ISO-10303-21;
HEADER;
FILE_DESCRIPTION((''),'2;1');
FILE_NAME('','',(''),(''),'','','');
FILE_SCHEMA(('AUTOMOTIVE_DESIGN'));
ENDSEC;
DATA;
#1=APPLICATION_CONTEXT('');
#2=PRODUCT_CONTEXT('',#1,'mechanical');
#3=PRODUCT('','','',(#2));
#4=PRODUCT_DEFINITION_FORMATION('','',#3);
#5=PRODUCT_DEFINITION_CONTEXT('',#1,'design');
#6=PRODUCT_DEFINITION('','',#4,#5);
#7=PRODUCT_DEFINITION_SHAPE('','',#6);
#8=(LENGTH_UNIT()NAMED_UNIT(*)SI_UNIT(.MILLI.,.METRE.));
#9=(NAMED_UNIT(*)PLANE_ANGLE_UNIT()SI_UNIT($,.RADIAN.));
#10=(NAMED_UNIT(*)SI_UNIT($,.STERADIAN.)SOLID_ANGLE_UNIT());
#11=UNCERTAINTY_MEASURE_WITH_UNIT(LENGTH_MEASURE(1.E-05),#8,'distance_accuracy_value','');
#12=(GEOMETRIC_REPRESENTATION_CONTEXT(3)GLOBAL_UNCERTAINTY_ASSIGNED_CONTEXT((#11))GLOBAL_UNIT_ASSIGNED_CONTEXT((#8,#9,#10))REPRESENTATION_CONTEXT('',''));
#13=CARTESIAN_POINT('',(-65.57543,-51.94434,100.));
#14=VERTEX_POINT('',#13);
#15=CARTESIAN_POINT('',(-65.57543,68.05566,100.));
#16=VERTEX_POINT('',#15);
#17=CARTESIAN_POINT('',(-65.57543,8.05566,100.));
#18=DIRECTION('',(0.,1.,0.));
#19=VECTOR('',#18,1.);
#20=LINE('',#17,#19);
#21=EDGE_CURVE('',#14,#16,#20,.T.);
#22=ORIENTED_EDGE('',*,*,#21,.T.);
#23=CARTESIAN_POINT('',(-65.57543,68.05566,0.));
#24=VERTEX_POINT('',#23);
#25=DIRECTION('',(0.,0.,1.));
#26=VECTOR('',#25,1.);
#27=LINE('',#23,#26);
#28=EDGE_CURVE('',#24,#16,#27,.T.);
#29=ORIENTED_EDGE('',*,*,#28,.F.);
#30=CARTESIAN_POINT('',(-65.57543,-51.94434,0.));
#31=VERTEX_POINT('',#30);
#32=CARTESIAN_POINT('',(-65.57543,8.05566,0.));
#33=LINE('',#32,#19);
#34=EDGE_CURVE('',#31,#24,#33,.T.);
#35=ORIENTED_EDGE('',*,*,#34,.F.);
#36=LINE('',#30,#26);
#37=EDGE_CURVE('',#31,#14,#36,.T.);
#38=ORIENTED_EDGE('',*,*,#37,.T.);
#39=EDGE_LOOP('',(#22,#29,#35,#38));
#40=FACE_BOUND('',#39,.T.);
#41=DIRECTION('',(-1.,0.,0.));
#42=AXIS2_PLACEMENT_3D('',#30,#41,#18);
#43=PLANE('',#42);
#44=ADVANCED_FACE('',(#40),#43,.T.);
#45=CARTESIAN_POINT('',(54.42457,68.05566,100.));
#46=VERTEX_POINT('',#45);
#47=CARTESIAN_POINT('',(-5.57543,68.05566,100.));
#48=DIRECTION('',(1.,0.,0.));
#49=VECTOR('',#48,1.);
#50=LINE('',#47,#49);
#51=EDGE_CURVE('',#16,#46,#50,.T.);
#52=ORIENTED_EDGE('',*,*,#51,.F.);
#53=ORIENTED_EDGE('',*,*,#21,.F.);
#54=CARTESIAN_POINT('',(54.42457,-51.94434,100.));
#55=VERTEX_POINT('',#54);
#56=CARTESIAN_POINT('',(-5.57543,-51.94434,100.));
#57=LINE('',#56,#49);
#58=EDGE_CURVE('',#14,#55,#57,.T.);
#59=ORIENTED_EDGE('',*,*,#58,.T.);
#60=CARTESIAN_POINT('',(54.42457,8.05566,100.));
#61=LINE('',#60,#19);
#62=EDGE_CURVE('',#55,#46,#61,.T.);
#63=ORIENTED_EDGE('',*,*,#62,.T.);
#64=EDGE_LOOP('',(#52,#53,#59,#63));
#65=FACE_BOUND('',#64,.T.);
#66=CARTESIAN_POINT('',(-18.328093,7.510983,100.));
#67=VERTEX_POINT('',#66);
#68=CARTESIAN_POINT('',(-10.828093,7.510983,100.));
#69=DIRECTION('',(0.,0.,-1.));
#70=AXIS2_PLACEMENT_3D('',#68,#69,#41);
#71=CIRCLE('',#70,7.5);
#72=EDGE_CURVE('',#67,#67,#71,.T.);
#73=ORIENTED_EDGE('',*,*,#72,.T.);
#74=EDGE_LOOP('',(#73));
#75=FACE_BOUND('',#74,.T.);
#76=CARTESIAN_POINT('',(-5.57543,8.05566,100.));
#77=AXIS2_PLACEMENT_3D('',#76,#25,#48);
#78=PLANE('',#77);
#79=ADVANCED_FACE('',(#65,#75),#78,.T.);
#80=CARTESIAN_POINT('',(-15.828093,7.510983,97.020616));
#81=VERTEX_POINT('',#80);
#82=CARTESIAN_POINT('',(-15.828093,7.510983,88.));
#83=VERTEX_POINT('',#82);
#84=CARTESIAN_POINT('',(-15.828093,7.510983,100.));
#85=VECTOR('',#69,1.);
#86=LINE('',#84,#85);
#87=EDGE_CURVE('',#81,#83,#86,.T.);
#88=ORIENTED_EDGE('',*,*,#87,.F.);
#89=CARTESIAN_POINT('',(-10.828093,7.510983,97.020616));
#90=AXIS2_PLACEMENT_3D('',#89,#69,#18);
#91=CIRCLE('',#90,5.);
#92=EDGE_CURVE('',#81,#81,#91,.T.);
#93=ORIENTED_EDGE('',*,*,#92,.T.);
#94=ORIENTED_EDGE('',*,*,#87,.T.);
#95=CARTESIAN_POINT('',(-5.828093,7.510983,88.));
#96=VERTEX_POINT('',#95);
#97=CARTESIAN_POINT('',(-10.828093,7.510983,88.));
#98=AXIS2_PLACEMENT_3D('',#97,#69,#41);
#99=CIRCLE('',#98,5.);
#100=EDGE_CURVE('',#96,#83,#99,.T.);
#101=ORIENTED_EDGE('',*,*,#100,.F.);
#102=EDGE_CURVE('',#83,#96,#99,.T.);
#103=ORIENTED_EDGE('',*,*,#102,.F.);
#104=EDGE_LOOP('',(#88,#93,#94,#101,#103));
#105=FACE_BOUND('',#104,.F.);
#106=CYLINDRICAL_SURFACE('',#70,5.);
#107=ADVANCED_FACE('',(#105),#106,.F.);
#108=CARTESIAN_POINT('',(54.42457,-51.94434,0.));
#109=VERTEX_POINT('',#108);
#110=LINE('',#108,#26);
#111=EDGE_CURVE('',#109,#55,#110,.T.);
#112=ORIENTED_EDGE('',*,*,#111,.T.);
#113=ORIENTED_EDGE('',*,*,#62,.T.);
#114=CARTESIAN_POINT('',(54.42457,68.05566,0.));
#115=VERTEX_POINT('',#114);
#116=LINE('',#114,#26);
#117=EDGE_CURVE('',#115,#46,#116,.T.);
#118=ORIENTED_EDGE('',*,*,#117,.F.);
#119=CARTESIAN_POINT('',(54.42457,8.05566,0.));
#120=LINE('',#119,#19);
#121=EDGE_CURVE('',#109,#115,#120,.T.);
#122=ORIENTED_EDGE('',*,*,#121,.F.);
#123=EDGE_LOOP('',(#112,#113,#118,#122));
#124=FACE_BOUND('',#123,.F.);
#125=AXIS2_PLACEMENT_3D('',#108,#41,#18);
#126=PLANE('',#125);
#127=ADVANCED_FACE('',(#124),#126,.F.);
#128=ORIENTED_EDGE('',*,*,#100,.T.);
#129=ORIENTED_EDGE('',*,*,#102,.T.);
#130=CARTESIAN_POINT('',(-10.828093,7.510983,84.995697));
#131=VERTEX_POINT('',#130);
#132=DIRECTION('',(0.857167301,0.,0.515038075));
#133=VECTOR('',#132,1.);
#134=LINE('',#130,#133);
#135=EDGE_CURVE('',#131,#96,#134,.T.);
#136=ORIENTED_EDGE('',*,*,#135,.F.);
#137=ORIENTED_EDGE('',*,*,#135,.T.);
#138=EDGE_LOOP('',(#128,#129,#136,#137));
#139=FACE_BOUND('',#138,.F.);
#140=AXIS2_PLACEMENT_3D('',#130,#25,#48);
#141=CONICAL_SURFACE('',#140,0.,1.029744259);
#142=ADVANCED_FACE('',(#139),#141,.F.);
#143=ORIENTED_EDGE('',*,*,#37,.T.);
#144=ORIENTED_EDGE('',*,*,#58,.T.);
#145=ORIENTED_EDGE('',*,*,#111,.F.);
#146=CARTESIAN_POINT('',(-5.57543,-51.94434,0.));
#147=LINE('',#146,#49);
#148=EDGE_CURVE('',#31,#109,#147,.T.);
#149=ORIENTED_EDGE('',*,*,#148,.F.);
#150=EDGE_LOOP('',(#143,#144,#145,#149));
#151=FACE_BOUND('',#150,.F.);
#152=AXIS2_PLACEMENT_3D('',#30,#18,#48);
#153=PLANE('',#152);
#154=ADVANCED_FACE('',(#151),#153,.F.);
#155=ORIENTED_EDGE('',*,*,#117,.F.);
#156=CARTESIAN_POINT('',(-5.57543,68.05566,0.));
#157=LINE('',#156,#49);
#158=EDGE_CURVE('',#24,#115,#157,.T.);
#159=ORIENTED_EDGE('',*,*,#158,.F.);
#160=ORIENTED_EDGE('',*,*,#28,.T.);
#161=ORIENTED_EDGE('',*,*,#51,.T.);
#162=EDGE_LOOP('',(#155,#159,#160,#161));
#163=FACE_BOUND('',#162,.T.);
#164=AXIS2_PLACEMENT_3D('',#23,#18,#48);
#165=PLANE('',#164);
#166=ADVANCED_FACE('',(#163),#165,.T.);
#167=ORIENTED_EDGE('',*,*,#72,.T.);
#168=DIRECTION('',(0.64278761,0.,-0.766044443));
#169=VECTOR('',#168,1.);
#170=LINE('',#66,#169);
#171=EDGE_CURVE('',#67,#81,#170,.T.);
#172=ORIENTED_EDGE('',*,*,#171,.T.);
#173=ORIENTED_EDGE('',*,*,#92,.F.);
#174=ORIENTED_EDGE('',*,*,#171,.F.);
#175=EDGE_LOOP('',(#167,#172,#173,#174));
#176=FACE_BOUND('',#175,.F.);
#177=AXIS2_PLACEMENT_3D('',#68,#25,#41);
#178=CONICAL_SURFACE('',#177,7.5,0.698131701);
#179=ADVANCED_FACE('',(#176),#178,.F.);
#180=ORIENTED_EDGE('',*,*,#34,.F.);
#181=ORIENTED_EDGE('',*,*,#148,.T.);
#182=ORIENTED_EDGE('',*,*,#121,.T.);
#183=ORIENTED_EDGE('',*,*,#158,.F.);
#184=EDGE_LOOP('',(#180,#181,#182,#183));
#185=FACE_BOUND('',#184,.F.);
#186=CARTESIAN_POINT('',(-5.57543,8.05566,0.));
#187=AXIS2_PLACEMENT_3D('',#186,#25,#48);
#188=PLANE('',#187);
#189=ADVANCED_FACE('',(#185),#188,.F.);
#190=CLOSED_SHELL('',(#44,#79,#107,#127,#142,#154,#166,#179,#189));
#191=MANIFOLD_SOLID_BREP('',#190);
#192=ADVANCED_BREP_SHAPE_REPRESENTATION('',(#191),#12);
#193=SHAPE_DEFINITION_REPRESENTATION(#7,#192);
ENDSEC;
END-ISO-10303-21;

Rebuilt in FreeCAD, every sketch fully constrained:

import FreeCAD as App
import Part
import Sketcher

V = App.Vector
Q = App.Units.Quantity

doc = App.newDocument("Part")
params = doc.addObject("Spreadsheet::Sheet", "Params")
for row, (alias, value) in enumerate([
    ("sketch1_width", "120 mm"),
    ("pad1_length", "100 mm"),
    ("sketch2_diameter", "10 mm"),
    ("hole_diameter", "10 mm"),
    ("hole_depth", "12 mm"),
    ("hole_csink_diameter", "15 mm"),
], start=1):
    params.set(f"A{row}", alias)
    params.set(f"B{row}", "=" + value)
    params.setAlias(f"B{row}", alias)

body = doc.addObject("PartDesign::Body", "Body")

sketch1 = body.newObject("Sketcher::SketchObject", "Sketch")
sketch1.AttachmentSupport = (doc.getObject("XY_Plane"), [""])
sketch1.MapMode = "FlatFace"
sketch1.addGeometry([
    Part.LineSegment(V(-66, 68, 0), V(-66, -52, 0)),
    Part.LineSegment(V(-66, -52, 0), V(54, -52, 0)),
    Part.LineSegment(V(54, -52, 0), V(54, 68, 0)),
    Part.LineSegment(V(54, 68, 0), V(-66, 68, 0)),
], False)
sketch1.addConstraint([
    Sketcher.Constraint("Coincident", 0, 2, 1, 1),
    Sketcher.Constraint("Coincident", 1, 2, 2, 1),
    Sketcher.Constraint("Coincident", 2, 2, 3, 1),
    Sketcher.Constraint("Coincident", 3, 2, 0, 1),
    Sketcher.Constraint("Vertical", 0),
    Sketcher.Constraint("Horizontal", 1),
    Sketcher.Constraint("Vertical", 2),
    Sketcher.Constraint("Horizontal", 3),
    Sketcher.Constraint("Equal", 3, 0),
    Sketcher.Constraint("DistanceX", 1, 1, 1, 2, Q("120 mm")),
    Sketcher.Constraint("DistanceX", 0, 2, -1, 1, Q("65.57543 mm")),
    Sketcher.Constraint("DistanceY", 0, 2, -1, 1, Q("51.94434 mm")),
])
sketch1.setExpression("Constraints[9]", "Params.sketch1_width")
pad1 = body.newObject("PartDesign::Pad", "Pad")
pad1.Profile = sketch1
pad1.setExpression("Length", "Params.pad1_length")

sketch2 = body.newObject("Sketcher::SketchObject", "Sketch001")
sketch2.AttachmentSupport = (doc.getObject("XY_Plane"), [""])
sketch2.MapMode = "FlatFace"
sketch2.AttachmentOffset = App.Placement(V(0, 0, 100), App.Rotation())
sketch2.addGeometry(Part.Circle(V(-11, 8, 0), V(0, 0, 1), 5), False)
sketch2.addConstraint([
    Sketcher.Constraint("Diameter", 0, Q("10 mm")),
    Sketcher.Constraint("DistanceX", 0, 3, -1, 1, Q("10.828093 mm")),
    Sketcher.Constraint("DistanceY", -1, 1, 0, 3, Q("7.510983 mm")),
])
sketch2.setExpression("Constraints[0]", "Params.sketch2_diameter")
doc.recompute()
hole = body.newObject("PartDesign::Hole", "Hole")
hole.Profile = sketch2
hole.ThreadType = "None"
hole.setExpression("Diameter", "Params.hole_diameter")
hole.DepthType = "Dimension"
hole.setExpression("Depth", "Params.hole_depth")
hole.DrillPoint = "Angled"
hole.DrillPointAngle = 118
hole.HoleCutType = "Countersink"
hole.setExpression("HoleCutDiameter", "Params.hole_csink_diameter")
hole.HoleCutCountersinkAngle = 80

doc.recompute()
